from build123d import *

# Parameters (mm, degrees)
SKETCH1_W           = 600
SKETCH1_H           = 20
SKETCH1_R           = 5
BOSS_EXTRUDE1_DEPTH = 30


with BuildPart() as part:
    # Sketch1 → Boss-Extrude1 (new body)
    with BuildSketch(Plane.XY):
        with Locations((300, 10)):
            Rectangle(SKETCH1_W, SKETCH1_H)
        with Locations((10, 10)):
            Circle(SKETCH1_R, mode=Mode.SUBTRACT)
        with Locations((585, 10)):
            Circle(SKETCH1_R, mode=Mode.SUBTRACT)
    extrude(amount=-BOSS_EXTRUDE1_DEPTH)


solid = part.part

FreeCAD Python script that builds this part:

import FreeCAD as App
import Part
import Sketcher

V = App.Vector


def add_polygon(sketch, points):
    """Adds a closed chain of lines whose ends are joined by coincident constraints."""
    first, n = sketch.GeometryCount, len(points)
    for a, b in zip(points, points[1:] + points[:1]):
        sketch.addGeometry(Part.LineSegment(App.Vector(*a, 0), App.Vector(*b, 0)), False)
    for i in range(n):
        sketch.addConstraint(Sketcher.Constraint("Coincident", first + i, 2, first + (i + 1) % n, 1))

doc = App.newDocument("Part")
body = doc.addObject("PartDesign::Body", "Body")

# Sketch on XY plane
sketch1 = body.newObject("Sketcher::SketchObject", "Sketch")
sketch1.AttachmentSupport = (doc.getObject("XY_Plane"), [""])
sketch1.MapMode = "FlatFace"
add_polygon(sketch1, [(0, 20), (0, 0), (600, 0), (600, 20)])  # lines 0-3
sketch1.addGeometry(Part.Circle(V(10, 10, 0), V(0, 0, 1), 5), False)  # 4
sketch1.addGeometry(Part.Circle(V(585, 10, 0), V(0, 0, 1), 5), False)  # 5
sketch1.addConstraint(Sketcher.Constraint("Vertical", 0))
sketch1.addConstraint(Sketcher.Constraint("Horizontal", 1))
sketch1.addConstraint(Sketcher.Constraint("Vertical", 2))
sketch1.addConstraint(Sketcher.Constraint("Horizontal", 3))
sketch1.addConstraint(Sketcher.Constraint("Coincident", 0, 2, -1, 1))
sketch1.addConstraint(Sketcher.Constraint("Equal", 4, 5))
sketch1.addConstraint(Sketcher.Constraint("Horizontal", 4, 3, 5, 3))
sketch1.addConstraint(Sketcher.Constraint("Diameter", 4, 10.0))
sketch1.addConstraint(Sketcher.Constraint("DistanceX", 1, 1, 1, 2, 600.0))
sketch1.addConstraint(Sketcher.Constraint("DistanceY", 0, 2, 0, 1, 20.0))
sketch1.addConstraint(Sketcher.Constraint("DistanceX", -1, 1, 4, 3, 10.0))
sketch1.addConstraint(Sketcher.Constraint("DistanceY", -1, 1, 4, 3, 10.0))
sketch1.addConstraint(Sketcher.Constraint("DistanceX", -1, 1, 5, 3, 585.0))
pad1 = body.newObject("PartDesign::Pad", "Pad")
pad1.Profile = sketch1
pad1.Length = 30
pad1.Reversed = True

doc.recompute()
